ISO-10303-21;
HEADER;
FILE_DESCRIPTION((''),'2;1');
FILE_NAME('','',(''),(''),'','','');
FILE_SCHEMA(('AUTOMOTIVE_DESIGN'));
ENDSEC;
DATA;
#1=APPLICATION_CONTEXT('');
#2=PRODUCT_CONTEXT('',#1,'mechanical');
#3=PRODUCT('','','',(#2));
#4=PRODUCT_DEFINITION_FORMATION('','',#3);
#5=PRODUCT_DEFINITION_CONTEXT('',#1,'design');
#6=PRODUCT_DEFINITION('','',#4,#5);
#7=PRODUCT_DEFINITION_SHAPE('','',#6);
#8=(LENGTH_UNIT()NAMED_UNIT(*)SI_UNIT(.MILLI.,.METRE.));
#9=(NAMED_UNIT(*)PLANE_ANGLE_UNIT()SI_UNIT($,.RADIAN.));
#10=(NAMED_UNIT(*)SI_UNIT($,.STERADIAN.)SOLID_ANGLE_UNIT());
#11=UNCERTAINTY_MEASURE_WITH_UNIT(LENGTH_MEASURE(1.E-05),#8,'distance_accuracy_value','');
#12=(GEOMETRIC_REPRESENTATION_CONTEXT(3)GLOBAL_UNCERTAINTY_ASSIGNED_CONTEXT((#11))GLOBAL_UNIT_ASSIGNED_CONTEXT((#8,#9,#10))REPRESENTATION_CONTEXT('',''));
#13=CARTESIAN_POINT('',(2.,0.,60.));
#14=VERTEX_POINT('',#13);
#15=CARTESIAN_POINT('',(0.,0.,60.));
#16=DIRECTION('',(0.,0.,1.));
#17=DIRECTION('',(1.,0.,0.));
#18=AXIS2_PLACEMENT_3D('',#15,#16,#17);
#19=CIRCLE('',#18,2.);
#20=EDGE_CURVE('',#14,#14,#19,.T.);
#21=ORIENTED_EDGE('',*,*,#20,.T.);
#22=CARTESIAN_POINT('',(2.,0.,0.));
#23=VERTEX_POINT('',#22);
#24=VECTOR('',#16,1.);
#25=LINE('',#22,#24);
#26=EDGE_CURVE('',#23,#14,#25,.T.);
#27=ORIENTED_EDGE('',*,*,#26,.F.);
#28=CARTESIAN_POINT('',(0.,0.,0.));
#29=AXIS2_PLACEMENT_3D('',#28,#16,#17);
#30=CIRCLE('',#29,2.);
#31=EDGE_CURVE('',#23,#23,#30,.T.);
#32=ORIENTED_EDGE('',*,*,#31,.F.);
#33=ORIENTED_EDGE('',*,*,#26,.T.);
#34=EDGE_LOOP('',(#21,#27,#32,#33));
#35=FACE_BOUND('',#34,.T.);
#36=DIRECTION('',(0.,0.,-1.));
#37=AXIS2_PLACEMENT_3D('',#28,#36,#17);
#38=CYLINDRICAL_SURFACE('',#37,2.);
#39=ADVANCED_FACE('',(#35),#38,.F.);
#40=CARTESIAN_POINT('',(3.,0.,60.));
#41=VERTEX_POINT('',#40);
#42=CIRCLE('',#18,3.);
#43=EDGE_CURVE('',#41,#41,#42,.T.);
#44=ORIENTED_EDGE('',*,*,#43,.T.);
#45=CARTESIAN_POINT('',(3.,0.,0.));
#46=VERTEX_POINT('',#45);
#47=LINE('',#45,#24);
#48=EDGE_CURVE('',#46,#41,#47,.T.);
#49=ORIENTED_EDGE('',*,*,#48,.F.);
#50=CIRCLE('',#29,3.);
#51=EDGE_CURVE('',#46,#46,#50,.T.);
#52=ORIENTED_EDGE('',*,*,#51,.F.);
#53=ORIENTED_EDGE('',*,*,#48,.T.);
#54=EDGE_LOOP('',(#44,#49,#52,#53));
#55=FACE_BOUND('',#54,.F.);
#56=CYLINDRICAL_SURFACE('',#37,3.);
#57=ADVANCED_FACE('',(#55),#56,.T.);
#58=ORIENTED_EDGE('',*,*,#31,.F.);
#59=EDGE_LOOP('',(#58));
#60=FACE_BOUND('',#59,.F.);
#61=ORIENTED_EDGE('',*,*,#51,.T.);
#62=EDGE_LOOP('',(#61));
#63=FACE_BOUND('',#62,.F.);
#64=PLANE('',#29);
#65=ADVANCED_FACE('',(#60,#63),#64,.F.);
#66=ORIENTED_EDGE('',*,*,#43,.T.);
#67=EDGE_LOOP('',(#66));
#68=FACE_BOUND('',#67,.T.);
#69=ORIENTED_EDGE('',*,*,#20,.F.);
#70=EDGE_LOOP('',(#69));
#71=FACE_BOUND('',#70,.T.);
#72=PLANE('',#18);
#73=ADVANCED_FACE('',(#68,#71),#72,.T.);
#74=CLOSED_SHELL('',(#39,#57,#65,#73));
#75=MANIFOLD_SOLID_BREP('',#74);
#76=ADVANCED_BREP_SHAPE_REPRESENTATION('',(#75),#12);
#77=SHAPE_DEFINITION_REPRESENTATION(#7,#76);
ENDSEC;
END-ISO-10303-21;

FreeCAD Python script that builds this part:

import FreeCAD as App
import Part
import Sketcher

doc = App.newDocument("Part")
params = doc.addObject("Spreadsheet::Sheet", "Params")
for row, (alias, value) in enumerate([
    ("sketch1_diameter", "6 mm"),
    ("sketch1_diameter2", "4 mm"),
    ("pad1_length", "60 mm"),
], start=1):
    params.set(f"A{row}", alias)
    params.set(f"B{row}", "=" + value)
    params.setAlias(f"B{row}", alias)

body = doc.addObject("PartDesign::Body", "Body")

sketch1 = body.newObject("Sketcher::SketchObject", "Sketch")
sketch1.AttachmentSupport = (doc.getObject("XY_Plane"), [""])
sketch1.MapMode = "FlatFace"
sketch1.addGeometry([
    Part.Circle(App.Vector(0, 0, 0), App.Vector(0, 0, 1), 3),
    Part.Circle(App.Vector(0, 0, 0), App.Vector(0, 0, 1), 2),
], False)
sketch1.addConstraint([
    Sketcher.Constraint("Coincident", 0, 3, -1, 1),
    Sketcher.Constraint("Coincident", 1, 3, -1, 1),
    Sketcher.Constraint("Diameter", 0, 6.0),
    Sketcher.Constraint("Diameter", 1, 4.0),
])
sketch1.setExpression("Constraints[2]", "Params.sketch1_diameter")
sketch1.setExpression("Constraints[3]", "Params.sketch1_diameter2")
pad1 = body.newObject("PartDesign::Pad", "Pad")
pad1.Profile = sketch1
pad1.setExpression("Length", "Params.pad1_length")

doc.recompute()
